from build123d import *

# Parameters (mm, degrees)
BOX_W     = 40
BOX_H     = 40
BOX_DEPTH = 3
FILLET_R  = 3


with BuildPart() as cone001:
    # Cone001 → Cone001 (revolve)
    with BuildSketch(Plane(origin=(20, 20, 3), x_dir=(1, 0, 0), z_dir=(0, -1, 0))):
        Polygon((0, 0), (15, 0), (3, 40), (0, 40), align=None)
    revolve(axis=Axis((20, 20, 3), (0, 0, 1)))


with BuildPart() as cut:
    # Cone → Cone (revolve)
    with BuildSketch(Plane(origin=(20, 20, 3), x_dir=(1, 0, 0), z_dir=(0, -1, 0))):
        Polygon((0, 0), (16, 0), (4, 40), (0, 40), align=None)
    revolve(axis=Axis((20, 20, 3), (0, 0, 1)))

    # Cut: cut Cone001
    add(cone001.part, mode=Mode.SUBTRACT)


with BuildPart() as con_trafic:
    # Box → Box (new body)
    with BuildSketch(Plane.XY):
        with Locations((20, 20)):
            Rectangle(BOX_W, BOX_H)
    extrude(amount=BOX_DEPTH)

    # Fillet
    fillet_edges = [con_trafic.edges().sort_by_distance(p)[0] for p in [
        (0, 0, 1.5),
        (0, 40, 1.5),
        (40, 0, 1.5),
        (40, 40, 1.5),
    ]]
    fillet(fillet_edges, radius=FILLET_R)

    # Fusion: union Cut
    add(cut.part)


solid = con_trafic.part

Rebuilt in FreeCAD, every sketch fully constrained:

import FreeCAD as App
import Part
import Sketcher
from FreeCAD import Vector


def edges_at(feature, points):
    """Names of the edges that pass closest to the given points."""
    edges = feature.Shape.Edges
    near = lambda p: min(range(len(edges)), key=lambda i: edges[i].distToShape(Part.Vertex(*p))[0])
    return sorted({f"Edge{near(p) + 1}" for p in points})


def add_polygon(sketch, points):
    """Adds a closed chain of lines whose ends are joined by coincident constraints."""
    first, n = sketch.GeometryCount, len(points)
    for a, b in zip(points, points[1:] + points[:1]):
        sketch.addGeometry(Part.LineSegment(App.Vector(*a, 0), App.Vector(*b, 0)), False)
    for i in range(n):
        sketch.addConstraint(Sketcher.Constraint("Coincident", first + i, 2, first + (i + 1) % n, 1))

doc = App.newDocument("Part")
body = doc.addObject("PartDesign::Body", "Body")

sketch1 = doc.addObject("Sketcher::SketchObject", "Sketch")
body.addObject(sketch1)
sketch1.AttachmentSupport = (doc.XZ_Plane, [""])
sketch1.MapMode = "FlatFace"
sketch1.AttachmentOffset = App.Placement(Vector(0, 0, -20), App.Rotation())
add_polygon(sketch1, [(20, 3), (35, 3), (23, 43), (20, 43)])
sketch1.addGeometry(Part.LineSegment(Vector(20, 3, 0), Vector(20, 43, 0)), True)
sketch1.addConstraint(Sketcher.Constraint("Horizontal", 0))
sketch1.addConstraint(Sketcher.Constraint("Horizontal", 2))
sketch1.addConstraint(Sketcher.Constraint("Vertical", 3))
sketch1.addConstraint(Sketcher.Constraint("Vertical", 4))
sketch1.addConstraint(Sketcher.Constraint("Coincident", 4, 1, 3, 2))
sketch1.addConstraint(Sketcher.Constraint("Horizontal", 1, 2, 4, 2))
sketch1.addConstraint(Sketcher.Constraint("DistanceX", 0, 1, 0, 2, 15.0))
sketch1.addConstraint(Sketcher.Constraint("DistanceX", 2, 2, 2, 1, 3.0))
sketch1.addConstraint(Sketcher.Constraint("DistanceY", 3, 2, 3, 1, 40.0))
sketch1.addConstraint(Sketcher.Constraint("DistanceX", -1, 1, 0, 2, 35.0))
sketch1.addConstraint(Sketcher.Constraint("DistanceY", -1, 1, 0, 2, 3.0))
revolution = doc.addObject("PartDesign::Revolution", "Revolution")
body.addObject(revolution)
revolution.Profile = sketch1
revolution.ReferenceAxis = (sketch1, ["Axis0"])
revolution.Angle = 360
body2 = doc.addObject("PartDesign::Body", "Body001")

sketch2 = doc.addObject("Sketcher::SketchObject", "Sketch001")
body2.addObject(sketch2)
sketch2.AttachmentSupport = (doc.getObject("XZ_Plane001"), [""])
sketch2.MapMode = "FlatFace"
sketch2.AttachmentOffset = App.Placement(Vector(0, 0, -20), App.Rotation())
add_polygon(sketch2, [(20, 3), (36, 3), (24, 43), (20, 43)])
sketch2.addGeometry(Part.LineSegment(Vector(20, 3, 0), Vector(20, 43, 0)), True)
sketch2.addConstraint(Sketcher.Constraint("Horizontal", 0))
sketch2.addConstraint(Sketcher.Constraint("Horizontal", 2))
sketch2.addConstraint(Sketcher.Constraint("Vertical", 3))
sketch2.addConstraint(Sketcher.Constraint("Vertical", 4))
sketch2.addConstraint(Sketcher.Constraint("Coincident", 4, 1, 3, 2))
sketch2.addConstraint(Sketcher.Constraint("Horizontal", 1, 2, 4, 2))
sketch2.addConstraint(Sketcher.Constraint("DistanceX", 0, 1, 0, 2, 16.0))
sketch2.addConstraint(Sketcher.Constraint("DistanceX", 2, 2, 2, 1, 4.0))
sketch2.addConstraint(Sketcher.Constraint("DistanceY", 3, 2, 3, 1, 40.0))
sketch2.addConstraint(Sketcher.Constraint("DistanceX", -1, 1, 0, 2, 36.0))
sketch2.addConstraint(Sketcher.Constraint("DistanceY", -1, 1, 0, 2, 3.0))
revolution2 = doc.addObject("PartDesign::Revolution", "Revolution001")
body2.addObject(revolution2)
revolution2.Profile = sketch2
revolution2.ReferenceAxis = (sketch2, ["Axis0"])
revolution2.Angle = 360
doc.recompute()

boolean = doc.addObject("PartDesign::Boolean", "Boolean")
body2.addObject(boolean)
boolean.Type = "Cut"
boolean.addObjects([body])
body3 = doc.addObject("PartDesign::Body", "Body002")

sketch3 = doc.addObject("Sketcher::SketchObject", "Sketch002")
body3.addObject(sketch3)
sketch3.AttachmentSupport = (doc.getObject("XY_Plane002"), [""])
sketch3.MapMode = "FlatFace"
add_polygon(sketch3, [(0, 40), (0, 0), (40, 0), (40, 40)])
sketch3.addConstraint(Sketcher.Constraint("Vertical", 0))
sketch3.addConstraint(Sketcher.Constraint("Horizontal", 1))
sketch3.addConstraint(Sketcher.Constraint("Vertical", 2))
sketch3.addConstraint(Sketcher.Constraint("Horizontal", 3))
sketch3.addConstraint(Sketcher.Constraint("Coincident", 0, 2, -1, 1))
sketch3.addConstraint(Sketcher.Constraint("Equal", 3, 0))
sketch3.addConstraint(Sketcher.Constraint("DistanceX", 1, 1, 1, 2, 40.0))
pad1 = doc.addObject("PartDesign::Pad", "Pad")
body3.addObject(pad1)
pad1.Profile = sketch3
pad1.Length = 3
doc.recompute()

fillet = doc.addObject("PartDesign::Fillet", "Fillet")
body3.addObject(fillet)
fillet.Base = (pad1, edges_at(pad1, [
    (0, 0, 1.5),
    (0, 40, 1.5),
    (40, 0, 1.5),
    (40, 40, 1.5),
]))
fillet.Radius = 3
doc.recompute()

boolean2 = doc.addObject("PartDesign::Boolean", "Boolean001")
body3.addObject(boolean2)
boolean2.Type = "Fuse"
boolean2.addObjects([body2])

doc.recompute()
